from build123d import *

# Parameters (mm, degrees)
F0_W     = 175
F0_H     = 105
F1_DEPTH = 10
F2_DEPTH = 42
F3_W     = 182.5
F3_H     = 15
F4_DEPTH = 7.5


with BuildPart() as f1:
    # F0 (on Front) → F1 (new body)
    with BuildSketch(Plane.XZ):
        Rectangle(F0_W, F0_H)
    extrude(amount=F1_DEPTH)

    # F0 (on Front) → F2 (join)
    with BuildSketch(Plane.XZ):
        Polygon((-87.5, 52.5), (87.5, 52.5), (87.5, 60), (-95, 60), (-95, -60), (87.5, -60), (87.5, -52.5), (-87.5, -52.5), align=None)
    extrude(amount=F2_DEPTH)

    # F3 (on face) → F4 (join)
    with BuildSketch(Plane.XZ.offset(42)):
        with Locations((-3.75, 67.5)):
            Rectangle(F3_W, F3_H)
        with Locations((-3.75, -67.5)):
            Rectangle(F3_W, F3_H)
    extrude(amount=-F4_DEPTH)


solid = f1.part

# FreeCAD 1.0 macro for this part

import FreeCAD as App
import Part
import Sketcher

V = App.Vector
Q = App.Units.Quantity

doc = App.newDocument("Part")
body = doc.addObject("PartDesign::Body", "Body")

sketch1 = body.newObject("Sketcher::SketchObject", "Sketch")
sketch1.AttachmentSupport = (doc.getObject("XZ_Plane"), [""])
sketch1.MapMode = "FlatFace"
sketch1.addGeometry(Part.LineSegment(V(-88, 52, 0), V(-88, -52, 0)), False)
sketch1.addGeometry(Part.LineSegment(V(-88, -52, 0), V(88, -52, 0)), False)
sketch1.addGeometry(Part.LineSegment(V(88, -52, 0), V(88, 52, 0)), False)
sketch1.addGeometry(Part.LineSegment(V(88, 52, 0), V(-88, 52, 0)), False)
sketch1.addConstraint(Sketcher.Constraint("Coincident", 0, 2, 1, 1))
sketch1.addConstraint(Sketcher.Constraint("Coincident", 1, 2, 2, 1))
sketch1.addConstraint(Sketcher.Constraint("Coincident", 2, 2, 3, 1))
sketch1.addConstraint(Sketcher.Constraint("Coincident", 3, 2, 0, 1))
sketch1.addConstraint(Sketcher.Constraint("Vertical", 0))
sketch1.addConstraint(Sketcher.Constraint("Horizontal", 1))
sketch1.addConstraint(Sketcher.Constraint("Vertical", 2))
sketch1.addConstraint(Sketcher.Constraint("Horizontal", 3))
sketch1.addConstraint(Sketcher.Constraint("Symmetric", 0, 2, 2, 2, -1, 1))
sketch1.addConstraint(Sketcher.Constraint("DistanceX", 1, 1, 1, 2, Q("175 mm")))
sketch1.addConstraint(Sketcher.Constraint("DistanceY", 0, 2, 0, 1, Q("105 mm")))
pad1 = body.newObject("PartDesign::Pad", "Pad")
pad1.Profile = sketch1
pad1.Length = 10

sketch2 = body.newObject("Sketcher::SketchObject", "Sketch001")
sketch2.AttachmentSupport = (doc.getObject("XZ_Plane"), [""])
sketch2.MapMode = "FlatFace"
sketch2.addGeometry(Part.LineSegment(V(-88, 52, 0), V(88, 52, 0)), False)
sketch2.addGeometry(Part.LineSegment(V(88, 52, 0), V(88, 60, 0)), False)
sketch2.addGeometry(Part.LineSegment(V(88, 60, 0), V(-95, 60, 0)), False)
sketch2.addGeometry(Part.LineSegment(V(-95, 60, 0), V(-95, -60, 0)), False)
sketch2.addGeometry(Part.LineSegment(V(-95, -60, 0), V(88, -60, 0)), False)
sketch2.addGeometry(Part.LineSegment(V(88, -60, 0), V(88, -52, 0)), False)
sketch2.addGeometry(Part.LineSegment(V(88, -52, 0), V(-88, -52, 0)), False)
sketch2.addGeometry(Part.LineSegment(V(-88, -52, 0), V(-88, 52, 0)), False)
sketch2.addConstraint(Sketcher.Constraint("Coincident", 0, 2, 1, 1))
sketch2.addConstraint(Sketcher.Constraint("Coincident", 1, 2, 2, 1))
sketch2.addConstraint(Sketcher.Constraint("Coincident", 2, 2, 3, 1))
sketch2.addConstraint(Sketcher.Constraint("Coincident", 3, 2, 4, 1))
sketch2.addConstraint(Sketcher.Constraint("Coincident", 4, 2, 5, 1))
sketch2.addConstraint(Sketcher.Constraint("Coincident", 5, 2, 6, 1))
sketch2.addConstraint(Sketcher.Constraint("Coincident", 6, 2, 7, 1))
sketch2.addConstraint(Sketcher.Constraint("Coincident", 7, 2, 0, 1))
sketch2.addConstraint(Sketcher.Constraint("Horizontal", 0))
sketch2.addConstraint(Sketcher.Constraint("Vertical", 1))
sketch2.addConstraint(Sketcher.Constraint("Horizontal", 2))
sketch2.addConstraint(Sketcher.Constraint("Vertical", 3))
sketch2.addConstraint(Sketcher.Constraint("Horizontal", 4))
sketch2.addConstraint(Sketcher.Constraint("Vertical", 5))
sketch2.addConstraint(Sketcher.Constraint("Horizontal", 6))
sketch2.addConstraint(Sketcher.Constraint("Vertical", 7))
sketch2.addConstraint(Sketcher.Constraint("Symmetric", 0, 2, 6, 2, -1, 1))
sketch2.addConstraint(Sketcher.Constraint("Symmetric", 1, 2, 4, 2, -1))
sketch2.addConstraint(Sketcher.Constraint("DistanceX", 0, 1, 0, 2, Q("175 mm")))
sketch2.addConstraint(Sketcher.Constraint("DistanceY", 3, 2, 3, 1, Q("120 mm")))
sketch2.addConstraint(Sketcher.Constraint("DistanceY", 7, 1, 7, 2, Q("105 mm")))
sketch2.addConstraint(Sketcher.Constraint("DistanceX", 2, 2, 2, 1, Q("182.5 mm")))
pad2 = body.newObject("PartDesign::Pad", "Pad001")
pad2.Profile = sketch2
pad2.Length = 42

sketch3 = body.newObject("Sketcher::SketchObject", "Sketch002")
sketch3.AttachmentSupport = (doc.getObject("XZ_Plane"), [""])
sketch3.MapMode = "FlatFace"
sketch3.AttachmentOffset = App.Placement(V(0, 0, 42), App.Rotation())
sketch3.addGeometry(Part.LineSegment(V(-95, 75, 0), V(-95, 60, 0)), False)
sketch3.addGeometry(Part.LineSegment(V(-95, 60, 0), V(88, 60, 0)), False)
sketch3.addGeometry(Part.LineSegment(V(88, 60, 0), V(88, 75, 0)), False)
sketch3.addGeometry(Part.LineSegment(V(88, 75, 0), V(-95, 75, 0)), False)
sketch3.addGeometry(Part.LineSegment(V(-95, -60, 0), V(-95, -75, 0)), False)
sketch3.addGeometry(Part.LineSegment(V(-95, -75, 0), V(88, -75, 0)), False)
sketch3.addGeometry(Part.LineSegment(V(88, -75, 0), V(88, -60, 0)), False)
sketch3.addGeometry(Part.LineSegment(V(88, -60, 0), V(-95, -60, 0)), False)
sketch3.addConstraint(Sketcher.Constraint("Coincident", 0, 2, 1, 1))
sketch3.addConstraint(Sketcher.Constraint("Coincident", 1, 2, 2, 1))
sketch3.addConstraint(Sketcher.Constraint("Coincident", 2, 2, 3, 1))
sketch3.addConstraint(Sketcher.Constraint("Coincident", 3, 2, 0, 1))
sketch3.addConstraint(Sketcher.Constraint("Coincident", 4, 2, 5, 1))
sketch3.addConstraint(Sketcher.Constraint("Coincident", 5, 2, 6, 1))
sketch3.addConstraint(Sketcher.Constraint("Coincident", 6, 2, 7, 1))
sketch3.addConstraint(Sketcher.Constraint("Coincident", 7, 2, 4, 1))
sketch3.addConstraint(Sketcher.Constraint("Vertical", 0))
sketch3.addConstraint(Sketcher.Constraint("Horizontal", 1))
sketch3.addConstraint(Sketcher.Constraint("Vertical", 2))
sketch3.addConstraint(Sketcher.Constraint("Horizontal", 3))
sketch3.addConstraint(Sketcher.Constraint("Vertical", 4))
sketch3.addConstraint(Sketcher.Constraint("Horizontal", 5))
sketch3.addConstraint(Sketcher.Constraint("Vertical", 6))
sketch3.addConstraint(Sketcher.Constraint("Horizontal", 7))
sketch3.addConstraint(Sketcher.Constraint("Symmetric", 3, 2, 4, 2, -1))
sketch3.addConstraint(Sketcher.Constraint("Symmetric", 1, 2, 6, 2, -1))
sketch3.addConstraint(Sketcher.Constraint("DistanceY", 0, 2, 0, 1, Q("15 mm")))
sketch3.addConstraint(Sketcher.Constraint("DistanceX", 1, 1, 1, 2, Q("182.5 mm")))
sketch3.addConstraint(Sketcher.Constraint("DistanceX", 0, 2, -1, 1, Q("95 mm")))
sketch3.addConstraint(Sketcher.Constraint("DistanceY", -1, 1, 0, 2, Q("60 mm")))
pad3 = body.newObject("PartDesign::Pad", "Pad002")
pad3.Profile = sketch3
pad3.Length = 7.5
pad3.Reversed = True

doc.recompute()
